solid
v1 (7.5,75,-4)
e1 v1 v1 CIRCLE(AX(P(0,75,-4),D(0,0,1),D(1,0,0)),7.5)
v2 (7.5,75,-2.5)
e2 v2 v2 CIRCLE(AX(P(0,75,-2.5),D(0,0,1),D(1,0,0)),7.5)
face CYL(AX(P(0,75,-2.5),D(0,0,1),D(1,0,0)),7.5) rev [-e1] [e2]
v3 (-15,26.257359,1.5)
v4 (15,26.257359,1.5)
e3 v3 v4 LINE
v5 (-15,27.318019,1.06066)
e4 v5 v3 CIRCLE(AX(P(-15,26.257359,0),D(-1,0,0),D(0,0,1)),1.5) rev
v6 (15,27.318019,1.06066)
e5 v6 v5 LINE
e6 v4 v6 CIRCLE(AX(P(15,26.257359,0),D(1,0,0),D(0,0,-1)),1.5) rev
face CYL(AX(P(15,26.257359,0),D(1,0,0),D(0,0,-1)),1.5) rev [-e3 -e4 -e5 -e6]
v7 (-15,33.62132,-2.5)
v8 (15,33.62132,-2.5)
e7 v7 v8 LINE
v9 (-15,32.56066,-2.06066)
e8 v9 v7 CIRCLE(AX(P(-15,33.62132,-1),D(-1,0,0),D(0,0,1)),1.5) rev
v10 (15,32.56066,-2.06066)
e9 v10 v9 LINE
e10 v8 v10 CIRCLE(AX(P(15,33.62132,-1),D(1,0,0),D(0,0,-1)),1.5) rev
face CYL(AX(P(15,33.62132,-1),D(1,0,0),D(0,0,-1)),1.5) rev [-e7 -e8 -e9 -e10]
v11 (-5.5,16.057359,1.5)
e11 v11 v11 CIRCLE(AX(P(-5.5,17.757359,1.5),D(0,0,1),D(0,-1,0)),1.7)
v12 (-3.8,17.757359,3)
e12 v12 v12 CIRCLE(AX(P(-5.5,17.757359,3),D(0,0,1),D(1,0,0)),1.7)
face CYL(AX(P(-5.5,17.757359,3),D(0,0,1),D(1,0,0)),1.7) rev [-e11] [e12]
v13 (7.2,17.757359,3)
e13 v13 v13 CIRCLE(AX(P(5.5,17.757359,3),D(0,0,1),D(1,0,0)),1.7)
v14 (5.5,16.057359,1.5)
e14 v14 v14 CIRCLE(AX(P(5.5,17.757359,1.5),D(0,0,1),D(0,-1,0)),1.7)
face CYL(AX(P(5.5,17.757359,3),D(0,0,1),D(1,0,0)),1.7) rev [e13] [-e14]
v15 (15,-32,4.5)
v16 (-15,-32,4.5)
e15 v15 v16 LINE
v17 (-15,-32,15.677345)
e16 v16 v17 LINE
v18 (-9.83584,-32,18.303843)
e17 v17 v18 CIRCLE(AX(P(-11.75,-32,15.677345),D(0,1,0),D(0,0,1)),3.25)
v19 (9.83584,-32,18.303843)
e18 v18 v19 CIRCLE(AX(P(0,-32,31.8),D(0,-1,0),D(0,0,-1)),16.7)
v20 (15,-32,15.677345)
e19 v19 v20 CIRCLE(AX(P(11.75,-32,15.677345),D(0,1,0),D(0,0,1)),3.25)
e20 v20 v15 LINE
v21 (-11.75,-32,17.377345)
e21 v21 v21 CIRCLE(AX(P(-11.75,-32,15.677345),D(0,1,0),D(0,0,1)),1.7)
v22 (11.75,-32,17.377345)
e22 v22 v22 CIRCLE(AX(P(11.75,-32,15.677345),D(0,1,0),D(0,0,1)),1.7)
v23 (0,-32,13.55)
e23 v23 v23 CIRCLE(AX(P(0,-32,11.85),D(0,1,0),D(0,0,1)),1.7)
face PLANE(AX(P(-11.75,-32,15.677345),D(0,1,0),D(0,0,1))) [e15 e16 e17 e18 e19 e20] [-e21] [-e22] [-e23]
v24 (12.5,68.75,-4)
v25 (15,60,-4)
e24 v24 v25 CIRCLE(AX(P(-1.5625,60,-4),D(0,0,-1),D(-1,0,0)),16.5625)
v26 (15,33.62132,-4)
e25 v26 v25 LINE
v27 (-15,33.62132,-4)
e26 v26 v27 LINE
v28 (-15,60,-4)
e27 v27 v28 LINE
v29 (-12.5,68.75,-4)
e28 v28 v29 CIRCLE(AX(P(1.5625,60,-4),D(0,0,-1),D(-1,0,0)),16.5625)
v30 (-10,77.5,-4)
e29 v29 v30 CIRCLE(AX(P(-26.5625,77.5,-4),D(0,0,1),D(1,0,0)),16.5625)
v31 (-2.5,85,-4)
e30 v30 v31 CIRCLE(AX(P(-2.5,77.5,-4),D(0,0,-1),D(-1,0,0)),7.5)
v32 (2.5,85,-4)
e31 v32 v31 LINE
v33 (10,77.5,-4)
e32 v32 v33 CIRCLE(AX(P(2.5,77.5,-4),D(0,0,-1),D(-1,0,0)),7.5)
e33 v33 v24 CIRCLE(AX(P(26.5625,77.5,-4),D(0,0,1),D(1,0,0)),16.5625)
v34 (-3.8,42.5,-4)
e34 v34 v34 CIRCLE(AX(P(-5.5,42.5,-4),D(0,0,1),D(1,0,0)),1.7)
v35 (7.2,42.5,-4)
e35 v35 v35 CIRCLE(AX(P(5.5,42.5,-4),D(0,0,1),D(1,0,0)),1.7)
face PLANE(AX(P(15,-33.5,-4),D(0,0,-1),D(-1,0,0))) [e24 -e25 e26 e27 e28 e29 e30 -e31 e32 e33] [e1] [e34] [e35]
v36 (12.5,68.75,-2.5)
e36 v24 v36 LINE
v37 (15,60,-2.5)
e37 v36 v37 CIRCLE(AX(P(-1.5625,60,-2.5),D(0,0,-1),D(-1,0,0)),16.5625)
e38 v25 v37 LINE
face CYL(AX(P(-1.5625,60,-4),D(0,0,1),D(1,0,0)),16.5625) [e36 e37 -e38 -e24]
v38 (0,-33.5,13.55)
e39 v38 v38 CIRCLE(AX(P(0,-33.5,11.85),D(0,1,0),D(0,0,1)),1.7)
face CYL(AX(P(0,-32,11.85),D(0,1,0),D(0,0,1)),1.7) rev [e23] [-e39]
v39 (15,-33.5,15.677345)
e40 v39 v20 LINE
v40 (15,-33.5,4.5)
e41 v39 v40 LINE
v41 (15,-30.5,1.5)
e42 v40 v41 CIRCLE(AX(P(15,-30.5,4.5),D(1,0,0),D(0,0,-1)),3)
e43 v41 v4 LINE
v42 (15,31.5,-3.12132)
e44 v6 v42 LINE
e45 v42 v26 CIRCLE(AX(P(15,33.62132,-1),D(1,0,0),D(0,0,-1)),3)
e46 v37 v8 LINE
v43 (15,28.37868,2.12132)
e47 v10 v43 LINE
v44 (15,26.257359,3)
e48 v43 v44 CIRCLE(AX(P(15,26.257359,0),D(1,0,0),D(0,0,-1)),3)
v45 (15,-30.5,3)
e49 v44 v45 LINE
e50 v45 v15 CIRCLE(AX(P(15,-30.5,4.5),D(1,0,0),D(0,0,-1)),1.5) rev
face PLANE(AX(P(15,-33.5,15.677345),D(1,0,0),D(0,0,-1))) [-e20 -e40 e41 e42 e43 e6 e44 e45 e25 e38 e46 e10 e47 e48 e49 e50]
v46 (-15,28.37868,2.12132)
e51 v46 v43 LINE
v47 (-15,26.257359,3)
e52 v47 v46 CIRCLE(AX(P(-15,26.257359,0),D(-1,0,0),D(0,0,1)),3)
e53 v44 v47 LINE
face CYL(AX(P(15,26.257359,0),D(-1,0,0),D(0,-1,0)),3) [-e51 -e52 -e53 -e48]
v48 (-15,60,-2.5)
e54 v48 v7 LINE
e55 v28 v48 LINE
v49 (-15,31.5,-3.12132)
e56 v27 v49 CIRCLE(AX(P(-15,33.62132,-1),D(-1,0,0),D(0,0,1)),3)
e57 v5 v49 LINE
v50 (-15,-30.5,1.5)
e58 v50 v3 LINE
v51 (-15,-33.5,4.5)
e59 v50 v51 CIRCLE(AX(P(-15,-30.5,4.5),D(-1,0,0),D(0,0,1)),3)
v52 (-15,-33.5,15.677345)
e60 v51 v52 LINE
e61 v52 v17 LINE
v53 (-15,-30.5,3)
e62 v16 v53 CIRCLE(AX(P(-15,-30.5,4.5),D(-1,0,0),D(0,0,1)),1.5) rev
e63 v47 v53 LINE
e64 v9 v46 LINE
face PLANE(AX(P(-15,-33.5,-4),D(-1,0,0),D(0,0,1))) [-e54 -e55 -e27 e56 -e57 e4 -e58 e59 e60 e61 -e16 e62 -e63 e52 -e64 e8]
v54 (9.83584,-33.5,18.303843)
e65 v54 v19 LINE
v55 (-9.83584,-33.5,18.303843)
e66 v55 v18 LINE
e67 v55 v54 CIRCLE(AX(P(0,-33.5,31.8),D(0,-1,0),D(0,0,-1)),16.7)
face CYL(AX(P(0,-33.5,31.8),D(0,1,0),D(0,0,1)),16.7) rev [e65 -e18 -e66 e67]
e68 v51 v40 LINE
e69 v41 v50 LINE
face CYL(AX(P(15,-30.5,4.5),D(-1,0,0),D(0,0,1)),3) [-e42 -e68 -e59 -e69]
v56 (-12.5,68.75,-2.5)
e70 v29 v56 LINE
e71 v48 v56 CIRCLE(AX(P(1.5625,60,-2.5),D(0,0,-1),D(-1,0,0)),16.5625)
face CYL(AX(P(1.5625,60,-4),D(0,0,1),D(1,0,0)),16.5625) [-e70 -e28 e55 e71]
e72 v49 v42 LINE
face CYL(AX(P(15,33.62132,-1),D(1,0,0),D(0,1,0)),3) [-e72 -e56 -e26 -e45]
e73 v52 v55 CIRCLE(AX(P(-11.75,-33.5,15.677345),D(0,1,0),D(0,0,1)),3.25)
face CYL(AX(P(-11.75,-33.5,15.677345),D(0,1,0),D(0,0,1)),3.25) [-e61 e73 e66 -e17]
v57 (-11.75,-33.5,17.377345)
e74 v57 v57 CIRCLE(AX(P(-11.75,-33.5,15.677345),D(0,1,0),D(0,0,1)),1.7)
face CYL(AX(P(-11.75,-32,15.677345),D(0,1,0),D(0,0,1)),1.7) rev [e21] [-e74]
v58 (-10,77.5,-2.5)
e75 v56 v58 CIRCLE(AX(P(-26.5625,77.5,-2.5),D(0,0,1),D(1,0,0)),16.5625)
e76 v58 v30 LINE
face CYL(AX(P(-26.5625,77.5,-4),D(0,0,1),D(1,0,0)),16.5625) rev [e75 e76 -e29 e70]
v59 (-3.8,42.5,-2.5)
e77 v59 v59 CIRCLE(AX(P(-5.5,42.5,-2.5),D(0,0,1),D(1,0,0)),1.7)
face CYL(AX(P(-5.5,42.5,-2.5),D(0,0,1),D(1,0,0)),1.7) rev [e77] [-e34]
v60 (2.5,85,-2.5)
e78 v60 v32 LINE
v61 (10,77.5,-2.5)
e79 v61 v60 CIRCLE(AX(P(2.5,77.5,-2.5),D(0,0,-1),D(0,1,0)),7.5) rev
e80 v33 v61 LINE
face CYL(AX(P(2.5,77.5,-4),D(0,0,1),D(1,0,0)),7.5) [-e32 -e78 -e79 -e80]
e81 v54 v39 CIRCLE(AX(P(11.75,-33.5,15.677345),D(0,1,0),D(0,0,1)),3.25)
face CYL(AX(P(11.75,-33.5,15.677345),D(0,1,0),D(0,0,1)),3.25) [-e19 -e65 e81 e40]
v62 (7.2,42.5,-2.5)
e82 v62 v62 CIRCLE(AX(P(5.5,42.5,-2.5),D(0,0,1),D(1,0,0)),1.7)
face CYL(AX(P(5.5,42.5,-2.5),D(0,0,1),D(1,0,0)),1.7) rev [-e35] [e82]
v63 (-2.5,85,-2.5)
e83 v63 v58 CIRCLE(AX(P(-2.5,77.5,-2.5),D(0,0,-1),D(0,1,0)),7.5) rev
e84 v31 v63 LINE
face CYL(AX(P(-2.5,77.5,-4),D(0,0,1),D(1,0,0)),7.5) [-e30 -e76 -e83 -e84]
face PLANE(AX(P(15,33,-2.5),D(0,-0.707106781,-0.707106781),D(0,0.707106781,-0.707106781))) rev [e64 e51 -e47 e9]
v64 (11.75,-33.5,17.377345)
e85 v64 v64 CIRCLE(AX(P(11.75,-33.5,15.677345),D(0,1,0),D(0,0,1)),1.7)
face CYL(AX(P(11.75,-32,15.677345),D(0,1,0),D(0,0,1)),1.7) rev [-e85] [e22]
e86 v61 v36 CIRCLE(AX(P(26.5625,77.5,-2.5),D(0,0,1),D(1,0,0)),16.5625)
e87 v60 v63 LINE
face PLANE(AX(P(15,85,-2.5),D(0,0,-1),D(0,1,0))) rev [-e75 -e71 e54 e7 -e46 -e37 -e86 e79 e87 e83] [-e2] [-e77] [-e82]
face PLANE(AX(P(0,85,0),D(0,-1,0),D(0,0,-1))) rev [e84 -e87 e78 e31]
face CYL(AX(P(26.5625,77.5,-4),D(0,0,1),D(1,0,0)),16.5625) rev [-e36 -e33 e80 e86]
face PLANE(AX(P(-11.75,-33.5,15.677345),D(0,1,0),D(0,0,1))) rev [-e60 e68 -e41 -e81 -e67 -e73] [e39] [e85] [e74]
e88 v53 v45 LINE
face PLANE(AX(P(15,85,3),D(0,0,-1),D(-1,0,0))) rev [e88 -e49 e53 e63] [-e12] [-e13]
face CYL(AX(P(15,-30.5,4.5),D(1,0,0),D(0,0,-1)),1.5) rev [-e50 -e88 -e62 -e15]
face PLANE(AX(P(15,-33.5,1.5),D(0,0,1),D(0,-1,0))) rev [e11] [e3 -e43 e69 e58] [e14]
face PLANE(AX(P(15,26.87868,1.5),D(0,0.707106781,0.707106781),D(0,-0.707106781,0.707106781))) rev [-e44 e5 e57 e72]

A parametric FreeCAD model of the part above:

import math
import FreeCAD as App
import Part
import Sketcher

V = App.Vector
Q = App.Units.Quantity


def edges_at(feature, points):
    """Names of the edges that pass closest to the given points."""
    edges = feature.Shape.Edges
    near = lambda p: min(range(len(edges)), key=lambda i: edges[i].distToShape(Part.Vertex(*p))[0])
    return sorted({f"Edge{near(p) + 1}" for p in points})


def add_polygon(sketch, points):
    """Adds a closed chain of lines whose ends are joined by coincident constraints."""
    first, n = sketch.GeometryCount, len(points)
    for a, b in zip(points, points[1:] + points[:1]):
        sketch.addGeometry(Part.LineSegment(App.Vector(*a, 0), App.Vector(*b, 0)), False)
    for i in range(n):
        sketch.addConstraint(Sketcher.Constraint("Coincident", first + i, 2, first + (i + 1) % n, 1))

doc = App.newDocument("Part")
body = doc.addObject("PartDesign::Body", "Body")

sketch1 = doc.addObject("Sketcher::SketchObject", "Sketch")
body.addObject(sketch1)
sketch1.AttachmentSupport = (doc.XZ_Plane, [""])
sketch1.MapMode = "FlatFace"
sketch1.AttachmentOffset = App.Placement(V(0, 0, 32), App.Rotation())
sketch1.addGeometry(Part.LineSegment(V(-15, -4, 0), V(-15, 15.7, 0)), False)
sketch1.addGeometry(Part.ArcOfCircle(Part.Circle(V(-11.8, 15.7, 0), V(0, 0, 1), 3.2), math.radians(54), math.radians(180)), False)
sketch1.addGeometry(Part.ArcOfCircle(Part.Circle(V(0, 31.8, 0), V(0, 0, 1), 16.7), math.radians(-126), math.radians(-54)), False)
sketch1.addGeometry(Part.ArcOfCircle(Part.Circle(V(11.8, 15.7, 0), V(0, 0, 1), 3.2), math.radians(0), math.radians(126)), False)
sketch1.addGeometry(Part.LineSegment(V(15, 15.7, 0), V(15, -4, 0)), False)
sketch1.addGeometry(Part.LineSegment(V(15, -4, 0), V(-15, -4, 0)), False)
sketch1.addConstraint(Sketcher.Constraint("Tangent", 0, 2, 1, 2))
sketch1.addConstraint(Sketcher.Constraint("Tangent", 1, 1, 2, 1))
sketch1.addConstraint(Sketcher.Constraint("Tangent", 2, 2, 3, 2))
sketch1.addConstraint(Sketcher.Constraint("Tangent", 3, 1, 4, 1))
sketch1.addConstraint(Sketcher.Constraint("Coincident", 4, 2, 5, 1))
sketch1.addConstraint(Sketcher.Constraint("Coincident", 5, 2, 0, 1))
sketch1.addConstraint(Sketcher.Constraint("Vertical", 0))
sketch1.addConstraint(Sketcher.Constraint("Vertical", 4))
sketch1.addConstraint(Sketcher.Constraint("Horizontal", 5))
sketch1.addConstraint(Sketcher.Constraint("Equal", 1, 3))
sketch1.addConstraint(Sketcher.Constraint("Symmetric", 1, 3, 3, 3, -2))
sketch1.addConstraint(Sketcher.Constraint("Radius", 2, 16.7))
sketch1.addConstraint(Sketcher.Constraint("DistanceX", 5, 2, 5, 1, 30.0))
sketch1.addConstraint(Sketcher.Constraint("Radius", 1, 3.25))
sketch1.addConstraint(Sketcher.Constraint("DistanceY", 4, 2, -1, 1, 4.0))
sketch1.addConstraint(Sketcher.Constraint("DistanceY", -1, 1, 2, 3, 31.8))
pad1 = doc.addObject("PartDesign::Pad", "Pad")
body.addObject(pad1)
pad1.Profile = sketch1
pad1.Length = 1.5

sketch2 = doc.addObject("Sketcher::SketchObject", "Sketch001")
body.addObject(sketch2)
sketch2.AttachmentSupport = (doc.XZ_Plane, [""])
sketch2.MapMode = "FlatFace"
sketch2.AttachmentOffset = App.Placement(V(0, 0, 32), App.Rotation())
add_polygon(sketch2, [(15, 3), (15, -4), (-15, -4), (-15, 3)])
sketch2.addConstraint(Sketcher.Constraint("Vertical", 0))
sketch2.addConstraint(Sketcher.Constraint("Horizontal", 1))
sketch2.addConstraint(Sketcher.Constraint("Vertical", 2))
sketch2.addConstraint(Sketcher.Constraint("Horizontal", 3))
sketch2.addConstraint(Sketcher.Constraint("DistanceX", 1, 2, 1, 1, 30.0))
sketch2.addConstraint(Sketcher.Constraint("DistanceY", 0, 2, 0, 1, 7.0))
sketch2.addConstraint(Sketcher.Constraint("DistanceX", -1, 1, 0, 2, 15.0))
sketch2.addConstraint(Sketcher.Constraint("DistanceY", 0, 2, -1, 1, 4.0))
pad2 = doc.addObject("PartDesign::Pad", "Pad001")
body.addObject(pad2)
pad2.Profile = sketch2
pad2.Length = 117
pad2.Reversed = True

sketch3 = doc.addObject("Sketcher::SketchObject", "Sketch002")
body.addObject(sketch3)
sketch3.AttachmentSupport = (doc.YZ_Plane, [""])
sketch3.MapMode = "FlatFace"
sketch3.AttachmentOffset = App.Placement(V(0, 0, -15), App.Rotation())
add_polygon(sketch3, [(85, 3), (85, -2), (33, -2), (28, 3)])
sketch3.addConstraint(Sketcher.Constraint("Vertical", 0))
sketch3.addConstraint(Sketcher.Constraint("Horizontal", 1))
sketch3.addConstraint(Sketcher.Constraint("Horizontal", 3))
sketch3.addConstraint(Sketcher.Constraint("DistanceX", 1, 2, 1, 1, 52.0))
sketch3.addConstraint(Sketcher.Constraint("Angle", 2, Q("135 deg")))
sketch3.addConstraint(Sketcher.Constraint("DistanceX", 3, 1, 3, 2, 57.5))
sketch3.addConstraint(Sketcher.Constraint("DistanceX", -1, 1, 0, 2, 85.0))
sketch3.addConstraint(Sketcher.Constraint("DistanceY", -1, 1, 2, 2, 3.0))
pocket1 = doc.addObject("PartDesign::Pocket", "Pocket")
body.addObject(pocket1)
pocket1.Profile = sketch3
pocket1.Type = "ThroughAll"
pocket1.Reversed = True

sketch4 = doc.addObject("Sketcher::SketchObject", "Sketch003")
body.addObject(sketch4)
sketch4.AttachmentSupport = (doc.XY_Plane, [""])
sketch4.MapMode = "FlatFace"
sketch4.AttachmentOffset = App.Placement(V(0, 0, -2.5), App.Rotation())
sketch4.addGeometry(Part.LineSegment(V(-11.8, 85, 0), V(-15, 85, 0)), False)
sketch4.addGeometry(Part.LineSegment(V(-15, 85, 0), V(-15, 60, 0)), False)
sketch4.addGeometry(Part.ArcOfCircle(Part.Circle(V(1.6, 60, 0), V(0, 0, 1), 16.6), math.radians(148), math.radians(180)), False)
sketch4.addGeometry(Part.ArcOfCircle(Part.Circle(V(-26.6, 77.5, 0), V(0, 0, 1), 16.6), math.radians(-32), math.radians(27)), False)
sketch4.addConstraint(Sketcher.Constraint("Coincident", 0, 2, 1, 1))
sketch4.addConstraint(Sketcher.Constraint("Tangent", 1, 2, 2, 2))
sketch4.addConstraint(Sketcher.Constraint("Tangent", 2, 1, 3, 1))
sketch4.addConstraint(Sketcher.Constraint("Coincident", 3, 2, 0, 1))
sketch4.addConstraint(Sketcher.Constraint("Horizontal", 0))
sketch4.addConstraint(Sketcher.Constraint("Vertical", 1))
sketch4.addConstraint(Sketcher.Constraint("Equal", 2, 3))
sketch4.addConstraint(Sketcher.Constraint("DistanceY", 1, 2, 1, 1, 25.0))
sketch4.addConstraint(Sketcher.Constraint("DistanceY", -1, 1, 2, 3, 60.0))
sketch4.addConstraint(Sketcher.Constraint("DistanceX", 0, 2, -1, 1, 15.0))
sketch4.addConstraint(Sketcher.Constraint("DistanceY", -1, 1, 3, 3, 77.5))
sketch4.addConstraint(Sketcher.Constraint("DistanceX", 2, 1, -1, 1, 12.5))
pocket2 = doc.addObject("PartDesign::Pocket", "Pocket001")
body.addObject(pocket2)
pocket2.Profile = sketch4
pocket2.Type = "ThroughAll"

sketch5 = doc.addObject("Sketcher::SketchObject", "Sketch004")
body.addObject(sketch5)
sketch5.AttachmentSupport = (doc.XY_Plane, [""])
sketch5.MapMode = "FlatFace"
sketch5.AttachmentOffset = App.Placement(V(0, 0, -2.5), App.Rotation())
sketch5.addGeometry(Part.LineSegment(V(15, 85, 0), V(11.8, 85, 0)), False)
sketch5.addGeometry(Part.ArcOfCircle(Part.Circle(V(26.6, 77.5, 0), V(0, 0, 1), 16.6), math.radians(153), math.radians(212)), False)
sketch5.addGeometry(Part.ArcOfCircle(Part.Circle(V(-1.6, 60, 0), V(0, 0, 1), 16.6), math.radians(0), math.radians(32)), False)
sketch5.addGeometry(Part.LineSegment(V(15, 60, 0), V(15, 85, 0)), False)
sketch5.addConstraint(Sketcher.Constraint("Coincident", 0, 2, 1, 1))
sketch5.addConstraint(Sketcher.Constraint("Tangent", 1, 2, 2, 2))
sketch5.addConstraint(Sketcher.Constraint("Tangent", 2, 1, 3, 1))
sketch5.addConstraint(Sketcher.Constraint("Coincident", 3, 2, 0, 1))
sketch5.addConstraint(Sketcher.Constraint("Horizontal", 0))
sketch5.addConstraint(Sketcher.Constraint("Vertical", 3))
sketch5.addConstraint(Sketcher.Constraint("Equal", 1, 2))
sketch5.addConstraint(Sketcher.Constraint("DistanceY", 3, 1, 3, 2, 25.0))
sketch5.addConstraint(Sketcher.Constraint("DistanceY", -1, 1, 2, 3, 60.0))
sketch5.addConstraint(Sketcher.Constraint("DistanceX", -1, 1, 2, 1, 15.0))
sketch5.addConstraint(Sketcher.Constraint("DistanceY", -1, 1, 1, 3, 77.5))
sketch5.addConstraint(Sketcher.Constraint("DistanceX", -1, 1, 1, 2, 12.5))
pocket3 = doc.addObject("PartDesign::Pocket", "Pocket002")
body.addObject(pocket3)
pocket3.Profile = sketch5
pocket3.Type = "ThroughAll"

sketch6 = doc.addObject("Sketcher::SketchObject", "Sketch005")
body.addObject(sketch6)
sketch6.AttachmentSupport = (doc.YZ_Plane, [""])
sketch6.MapMode = "FlatFace"
sketch6.AttachmentOffset = App.Placement(V(0, 0, -15), App.Rotation())
add_polygon(sketch6, [(-34, 2), (27, 2), (32, -4), (-34, -4)])
sketch6.addConstraint(Sketcher.Constraint("Horizontal", 0))
sketch6.addConstraint(Sketcher.Constraint("Horizontal", 2))
sketch6.addConstraint(Sketcher.Constraint("Vertical", 3))
sketch6.addConstraint(Sketcher.Constraint("Angle", 1, Q("-45 deg")))
sketch6.addConstraint(Sketcher.Constraint("DistanceY", 3, 1, 3, 2, 5.5))
sketch6.addConstraint(Sketcher.Constraint("DistanceY", 1, 2, -1, 1, 4.0))
sketch6.addConstraint(Sketcher.Constraint("DistanceX", 2, 2, -1, 1, 33.5))
sketch6.addConstraint(Sketcher.Constraint("DistanceX", 0, 1, 0, 2, 60.37868))
pocket4 = doc.addObject("PartDesign::Pocket", "Pocket003")
body.addObject(pocket4)
pocket4.Profile = sketch6
pocket4.Type = "ThroughAll"
pocket4.Reversed = True

sketch7 = doc.addObject("Sketcher::SketchObject", "Sketch006")
body.addObject(sketch7)
sketch7.AttachmentSupport = (doc.XY_Plane, [""])
sketch7.MapMode = "FlatFace"
sketch7.AttachmentOffset = App.Placement(V(0, 0, 3), App.Rotation())
sketch7.addGeometry(Part.Circle(V(-5.5, 17.8, 0), V(0, 0, 1), 1.7), False)
sketch7.addGeometry(Part.Circle(V(5.5, 17.8, 0), V(0, 0, 1), 1.7), False)
sketch7.addConstraint(Sketcher.Constraint("Equal", 0, 1))
sketch7.addConstraint(Sketcher.Constraint("Symmetric", 0, 3, 1, 3, -2))
sketch7.addConstraint(Sketcher.Constraint("Diameter", 0, 3.4))
sketch7.addConstraint(Sketcher.Constraint("DistanceX", 0, 3, 1, 3, 11.0))
sketch7.addConstraint(Sketcher.Constraint("DistanceY", -1, 1, 0, 3, 17.757359))
doc.recompute()
hole = doc.addObject("PartDesign::Hole", "Hole")
body.addObject(hole)
hole.Profile = sketch7
hole.ThreadType = "None"
hole.Diameter = 3.4
hole.DepthType = "Dimension"
hole.Depth = 7
hole.DrillPoint = "Flat"

sketch8 = doc.addObject("Sketcher::SketchObject", "Sketch007")
body.addObject(sketch8)
sketch8.AttachmentSupport = (doc.XY_Plane, [""])
sketch8.MapMode = "FlatFace"
sketch8.AttachmentOffset = App.Placement(V(0, 0, -2.5), App.Rotation())
sketch8.addGeometry(Part.Circle(V(-5.5, 42.5, 0), V(0, 0, 1), 1.7), False)
sketch8.addGeometry(Part.Circle(V(5.5, 42.5, 0), V(0, 0, 1), 1.7), False)
sketch8.addConstraint(Sketcher.Constraint("Equal", 0, 1))
sketch8.addConstraint(Sketcher.Constraint("Symmetric", 0, 3, 1, 3, -2))
sketch8.addConstraint(Sketcher.Constraint("Diameter", 0, 3.4))
sketch8.addConstraint(Sketcher.Constraint("DistanceX", 0, 3, 1, 3, 11.0))
sketch8.addConstraint(Sketcher.Constraint("DistanceY", -1, 1, 0, 3, 42.5))
doc.recompute()
hole2 = doc.addObject("PartDesign::Hole", "Hole001")
body.addObject(hole2)
hole2.Profile = sketch8
hole2.ThreadType = "None"
hole2.Diameter = 3.4
hole2.DepthType = "ThroughAll"

sketch9 = doc.addObject("Sketcher::SketchObject", "Sketch008")
body.addObject(sketch9)
sketch9.AttachmentSupport = (doc.XZ_Plane, [""])
sketch9.MapMode = "FlatFace"
sketch9.AttachmentOffset = App.Placement(V(0, 0, 32), App.Rotation())
sketch9.addGeometry(Part.Circle(V(-11.8, 15.7, 0), V(0, 0, 1), 1.7), False)
sketch9.addGeometry(Part.Circle(V(0, 11.8, 0), V(0, 0, 1), 1.7), False)
sketch9.addGeometry(Part.Circle(V(11.8, 15.7, 0), V(0, 0, 1), 1.7), False)
sketch9.addConstraint(Sketcher.Constraint("Equal", 0, 1))
sketch9.addConstraint(Sketcher.Constraint("Equal", 1, 2))
sketch9.addConstraint(Sketcher.Constraint("Symmetric", 0, 3, 2, 3, -2))
sketch9.addConstraint(Sketcher.Constraint("PointOnObject", 1, 3, -2))
sketch9.addConstraint(Sketcher.Constraint("Diameter", 0, 3.4))
sketch9.addConstraint(Sketcher.Constraint("DistanceX", 0, 3, 2, 3, 23.5))
sketch9.addConstraint(Sketcher.Constraint("DistanceY", -1, 1, 1, 3, 11.85))
sketch9.addConstraint(Sketcher.Constraint("DistanceY", -1, 1, 0, 3, 15.677345))
doc.recompute()
hole3 = doc.addObject("PartDesign::Hole", "Hole002")
body.addObject(hole3)
hole3.Profile = sketch9
hole3.ThreadType = "None"
hole3.Diameter = 3.4
hole3.DepthType = "ThroughAll"
hole3.Reversed = True

sketch10 = doc.addObject("Sketcher::SketchObject", "Sketch009")
body.addObject(sketch10)
sketch10.AttachmentSupport = (doc.XY_Plane, [""])
sketch10.MapMode = "FlatFace"
sketch10.AttachmentOffset = App.Placement(V(0, 0, -2.5), App.Rotation())
sketch10.addGeometry(Part.Circle(V(0, 75, 0), V(0, 0, 1), 8), False)
sketch10.addConstraint(Sketcher.Constraint("PointOnObject", 0, 3, -2))
sketch10.addConstraint(Sketcher.Constraint("Diameter", 0, 15.0))
sketch10.addConstraint(Sketcher.Constraint("DistanceY", -1, 1, 0, 3, 75.0))
doc.recompute()
hole4 = doc.addObject("PartDesign::Hole", "Hole003")
body.addObject(hole4)
hole4.Profile = sketch10
hole4.ThreadType = "None"
hole4.Diameter = 15
hole4.DepthType = "ThroughAll"
doc.recompute()

fillet = doc.addObject("PartDesign::Fillet", "Fillet")
body.addObject(fillet)
fillet.Base = (hole4, edges_at(hole4, [(0, -32, 3), (0, 33, -2.5), (0, 26.879, 1.5)]))
fillet.Radius = 1.5
doc.recompute()

fillet2 = doc.addObject("PartDesign::Fillet", "Fillet001")
body.addObject(fillet2)
fillet2.Base = (fillet, edges_at(fillet, [(0, 27.5, 3), (0, -33.5, 1.5), (0, 32.379, -4)]))
fillet2.Radius = 3
doc.recompute()

fillet3 = doc.addObject("PartDesign::Fillet", "Fillet002")
body.addObject(fillet3)
fillet3.Base = (fillet2, edges_at(fillet2, [(-11.795, 85, -3.25), (11.795, 85, -3.25)]))
fillet3.Radius = 7.5

doc.recompute()
